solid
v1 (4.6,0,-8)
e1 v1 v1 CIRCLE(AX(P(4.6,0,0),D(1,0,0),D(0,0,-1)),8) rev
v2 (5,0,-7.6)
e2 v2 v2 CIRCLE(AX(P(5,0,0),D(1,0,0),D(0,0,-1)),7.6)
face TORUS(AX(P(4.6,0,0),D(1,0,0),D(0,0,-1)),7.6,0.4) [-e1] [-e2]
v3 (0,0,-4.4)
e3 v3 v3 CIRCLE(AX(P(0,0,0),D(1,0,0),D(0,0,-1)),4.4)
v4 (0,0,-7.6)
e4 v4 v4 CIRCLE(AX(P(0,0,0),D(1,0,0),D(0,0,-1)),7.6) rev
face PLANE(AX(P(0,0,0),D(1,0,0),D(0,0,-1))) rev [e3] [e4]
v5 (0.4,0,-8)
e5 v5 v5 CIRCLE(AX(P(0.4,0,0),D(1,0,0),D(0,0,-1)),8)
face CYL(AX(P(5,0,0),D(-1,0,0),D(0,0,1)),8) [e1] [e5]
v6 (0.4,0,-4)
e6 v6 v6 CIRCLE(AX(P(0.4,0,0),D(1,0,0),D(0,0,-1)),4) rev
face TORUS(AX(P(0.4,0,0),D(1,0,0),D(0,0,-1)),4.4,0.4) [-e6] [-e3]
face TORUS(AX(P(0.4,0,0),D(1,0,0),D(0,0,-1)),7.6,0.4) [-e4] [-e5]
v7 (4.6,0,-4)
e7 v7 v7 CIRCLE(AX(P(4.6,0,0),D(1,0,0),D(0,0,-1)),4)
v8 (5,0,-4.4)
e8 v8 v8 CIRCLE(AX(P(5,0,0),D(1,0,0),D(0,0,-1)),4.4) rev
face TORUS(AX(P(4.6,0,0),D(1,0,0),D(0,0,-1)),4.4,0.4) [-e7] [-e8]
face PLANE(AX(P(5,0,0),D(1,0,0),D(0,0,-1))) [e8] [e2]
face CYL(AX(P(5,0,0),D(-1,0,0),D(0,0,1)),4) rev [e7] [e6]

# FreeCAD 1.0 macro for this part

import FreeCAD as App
import Part
import Sketcher

V = App.Vector


def edges_at(feature, points):
    """Names of the edges that pass closest to the given points."""
    edges = feature.Shape.Edges
    near = lambda p: min(range(len(edges)), key=lambda i: edges[i].distToShape(Part.Vertex(*p))[0])
    return sorted({f"Edge{near(p) + 1}" for p in points})

doc = App.newDocument("Part")
params = doc.addObject("Spreadsheet::Sheet", "Params")
for row, (alias, value) in enumerate([
    ("sketch1_diameter", "16 mm"),
    ("sketch1_diameter2", "8 mm"),
    ("pad1_length", "5 mm"),
    ("fillet_radius", "0.4 mm"),
], start=1):
    params.set(f"A{row}", alias)
    params.set(f"B{row}", "=" + value)
    params.setAlias(f"B{row}", alias)

body = doc.addObject("PartDesign::Body", "Body")

sketch1 = body.newObject("Sketcher::SketchObject", "Sketch")
sketch1.AttachmentSupport = (doc.getObject("YZ_Plane"), [""])
sketch1.MapMode = "FlatFace"
sketch1.addGeometry([
    Part.Circle(V(0, 0, 0), V(0, 0, 1), 8),
    Part.Circle(V(0, 0, 0), V(0, 0, 1), 4),
], False)
sketch1.addConstraint([
    Sketcher.Constraint("Coincident", 0, 3, -1, 1),
    Sketcher.Constraint("Coincident", 1, 3, -1, 1),
    Sketcher.Constraint("Diameter", 0, 16.0),
    Sketcher.Constraint("Diameter", 1, 8.0),
])
sketch1.setExpression("Constraints[2]", "Params.sketch1_diameter")
sketch1.setExpression("Constraints[3]", "Params.sketch1_diameter2")
pad1 = body.newObject("PartDesign::Pad", "Pad")
pad1.Profile = sketch1
pad1.setExpression("Length", "Params.pad1_length")
doc.recompute()

fillet = body.newObject("PartDesign::Fillet", "Fillet")
fillet.Base = (pad1, edges_at(pad1, [
    (0, 0, 8),
    (5, 0, 8),
    (0, 0, 4),
    (5, 0, 4),
]))
fillet.setExpression("Radius", "Params.fillet_radius")

doc.recompute()
